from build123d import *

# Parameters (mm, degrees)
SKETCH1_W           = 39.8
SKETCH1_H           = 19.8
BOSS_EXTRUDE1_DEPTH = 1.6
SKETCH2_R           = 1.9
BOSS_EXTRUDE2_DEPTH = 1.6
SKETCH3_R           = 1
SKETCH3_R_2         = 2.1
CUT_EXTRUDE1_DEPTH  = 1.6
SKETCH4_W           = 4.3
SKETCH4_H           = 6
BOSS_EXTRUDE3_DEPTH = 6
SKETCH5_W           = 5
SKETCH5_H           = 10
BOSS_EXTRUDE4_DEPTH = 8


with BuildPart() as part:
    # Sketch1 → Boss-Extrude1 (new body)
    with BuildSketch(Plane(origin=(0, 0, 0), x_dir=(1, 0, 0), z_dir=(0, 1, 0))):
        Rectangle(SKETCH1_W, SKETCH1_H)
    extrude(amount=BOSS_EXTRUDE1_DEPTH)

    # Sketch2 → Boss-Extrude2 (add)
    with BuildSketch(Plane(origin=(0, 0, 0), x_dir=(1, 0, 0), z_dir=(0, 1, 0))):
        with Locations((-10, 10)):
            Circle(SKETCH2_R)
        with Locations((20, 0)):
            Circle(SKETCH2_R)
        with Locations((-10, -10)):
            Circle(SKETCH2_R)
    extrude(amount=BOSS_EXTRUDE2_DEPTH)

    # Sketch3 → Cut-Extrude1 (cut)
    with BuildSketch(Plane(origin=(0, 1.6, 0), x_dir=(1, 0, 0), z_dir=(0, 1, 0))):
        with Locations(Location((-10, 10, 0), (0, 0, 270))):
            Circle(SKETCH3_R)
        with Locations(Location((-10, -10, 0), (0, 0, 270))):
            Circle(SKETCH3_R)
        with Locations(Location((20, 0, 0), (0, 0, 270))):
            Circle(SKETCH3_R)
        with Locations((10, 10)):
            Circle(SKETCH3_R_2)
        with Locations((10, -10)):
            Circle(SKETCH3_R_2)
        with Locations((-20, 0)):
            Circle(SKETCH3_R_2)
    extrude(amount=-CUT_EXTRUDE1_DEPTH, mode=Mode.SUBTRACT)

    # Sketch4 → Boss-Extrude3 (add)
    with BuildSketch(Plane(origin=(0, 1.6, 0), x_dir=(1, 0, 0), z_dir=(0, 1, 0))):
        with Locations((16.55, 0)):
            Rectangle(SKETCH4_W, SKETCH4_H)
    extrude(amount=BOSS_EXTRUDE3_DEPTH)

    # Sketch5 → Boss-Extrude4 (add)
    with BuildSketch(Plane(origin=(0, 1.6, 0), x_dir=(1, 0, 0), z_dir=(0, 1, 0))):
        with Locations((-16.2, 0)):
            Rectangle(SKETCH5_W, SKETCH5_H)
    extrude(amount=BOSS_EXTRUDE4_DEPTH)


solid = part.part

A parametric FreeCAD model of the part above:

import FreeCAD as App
import Part
import Sketcher

V = App.Vector
Q = App.Units.Quantity


def add_polygon(sketch, points):
    """Adds a closed chain of lines whose ends are joined by coincident constraints."""
    first, n = sketch.GeometryCount, len(points)
    for a, b in zip(points, points[1:] + points[:1]):
        sketch.addGeometry(Part.LineSegment(App.Vector(*a, 0), App.Vector(*b, 0)), False)
    for i in range(n):
        sketch.addConstraint(Sketcher.Constraint("Coincident", first + i, 2, first + (i + 1) % n, 1))

doc = App.newDocument("Part")
params = doc.addObject("Spreadsheet::Sheet", "Params")
for row, (alias, value) in enumerate([
    ("sketch1_width", "39.8 mm"),
    ("sketch1_height", "19.8 mm"),
    ("pad1_length", "1.6 mm"),
    ("sketch2_diameter", "3.8 mm"),
    ("pad2_length", "1.6 mm"),
    ("sketch3_diameter", "2 mm"),
    ("sketch3_diameter2", "4.2 mm"),
    ("pocket1_length", "1.6 mm"),
    ("sketch4_height", "6 mm"),
    ("sketch4_width", "4.3 mm"),
    ("pad3_length", "6 mm"),
    ("sketch5_width", "5 mm"),
    ("sketch5_height", "10 mm"),
    ("pad4_length", "8 mm"),
], start=1):
    params.set(f"A{row}", alias)
    params.set(f"B{row}", "=" + value)
    params.setAlias(f"B{row}", alias)

body = doc.addObject("PartDesign::Body", "Body")

# Sketch on XZ plane
sketch1 = body.newObject("Sketcher::SketchObject", "Sketch")
sketch1.AttachmentSupport = (doc.getObject("XZ_Plane"), [""])
sketch1.MapMode = "FlatFace"
add_polygon(sketch1, [(-20, -10), (-20, 10), (20, 10), (20, -10)])  # lines 0-3
sketch1.addConstraint([
    Sketcher.Constraint("Vertical", 0),
    Sketcher.Constraint("Horizontal", 1),
    Sketcher.Constraint("Vertical", 2),
    Sketcher.Constraint("Horizontal", 3),
    Sketcher.Constraint("Symmetric", 0, 2, 2, 2, -1, 1),
    Sketcher.Constraint("DistanceX", 1, 1, 1, 2, Q("39.8 mm")),
    Sketcher.Constraint("DistanceY", 0, 1, 0, 2, Q("19.8 mm")),
])
sketch1.setExpression("Constraints[9]", "Params.sketch1_width")
sketch1.setExpression("Constraints[10]", "Params.sketch1_height")
pad1 = body.newObject("PartDesign::Pad", "Pad")
pad1.Profile = sketch1
pad1.setExpression("Length", "Params.pad1_length")
pad1.Reversed = True

# Sketch on XZ plane
sketch2 = body.newObject("Sketcher::SketchObject", "Sketch001")
sketch2.AttachmentSupport = (doc.getObject("XZ_Plane"), [""])
sketch2.MapMode = "FlatFace"
sketch2.addGeometry([
    Part.Circle(V(-10, -10, 0), V(0, 0, 1), 1.9),
    Part.Circle(V(20, 0, 0), V(0, 0, 1), 1.9),
    Part.Circle(V(-10, 10, 0), V(0, 0, 1), 1.9),
], False)
sketch2.addConstraint([
    Sketcher.Constraint("Equal", 0, 1),
    Sketcher.Constraint("Equal", 1, 2),
    Sketcher.Constraint("Symmetric", 0, 3, 2, 3, -1),
    Sketcher.Constraint("PointOnObject", 1, 3, -1),
    Sketcher.Constraint("Diameter", 0, Q("3.8 mm")),
    Sketcher.Constraint("DistanceX", 0, 3, -1, 1, Q("10 mm")),
    Sketcher.Constraint("DistanceY", 0, 3, -1, 1, Q("10 mm")),
    Sketcher.Constraint("DistanceX", -1, 1, 1, 3, Q("20 mm")),
])
sketch2.setExpression("Constraints[4]", "Params.sketch2_diameter")
pad2 = body.newObject("PartDesign::Pad", "Pad001")
pad2.Profile = sketch2
pad2.setExpression("Length", "Params.pad2_length")
pad2.Reversed = True

# Sketch on XZ plane
sketch3 = body.newObject("Sketcher::SketchObject", "Sketch002")
sketch3.AttachmentSupport = (doc.getObject("XZ_Plane"), [""])
sketch3.MapMode = "FlatFace"
sketch3.AttachmentOffset = App.Placement(V(0, 0, -1.6), App.Rotation())
sketch3.addGeometry([
    Part.Circle(V(-10, -10, 0), V(0, 0, 1), 1),  # 0
    Part.Circle(V(-10, 10, 0), V(0, 0, 1), 1),  # 1
    Part.Circle(V(20, 0, 0), V(0, 0, 1), 1),  # 2
    Part.Circle(V(10, -10, 0), V(0, 0, 1), 2.1),  # 3
    Part.Circle(V(10, 10, 0), V(0, 0, 1), 2.1),  # 4
    Part.Circle(V(-20, 0, 0), V(0, 0, 1), 2.1),  # 5
], False)
sketch3.addConstraint([
    Sketcher.Constraint("Equal", 0, 1),
    Sketcher.Constraint("Equal", 1, 2),
    Sketcher.Constraint("Equal", 3, 4),
    Sketcher.Constraint("Equal", 4, 5),
    Sketcher.Constraint("Symmetric", 1, 3, 3, 3, -1, 1),
    Sketcher.Constraint("Symmetric", 0, 3, 4, 3, -1, 1),
    Sketcher.Constraint("Symmetric", 2, 3, 5, 3, -1, 1),
    Sketcher.Constraint("Symmetric", 0, 3, 3, 3, -2),
    Sketcher.Constraint("PointOnObject", 2, 3, -1),
    Sketcher.Constraint("Diameter", 0, Q("2 mm")),
    Sketcher.Constraint("Diameter", 3, Q("4.2 mm")),
    Sketcher.Constraint("DistanceX", 0, 3, -1, 1, Q("10 mm")),
    Sketcher.Constraint("DistanceY", 0, 3, -1, 1, Q("10 mm")),
    Sketcher.Constraint("DistanceX", -1, 1, 2, 3, Q("20 mm")),
])
sketch3.setExpression("Constraints[9]", "Params.sketch3_diameter")
sketch3.setExpression("Constraints[10]", "Params.sketch3_diameter2")
pocket1 = body.newObject("PartDesign::Pocket", "Pocket")
pocket1.Profile = sketch3
pocket1.setExpression("Length", "Params.pocket1_length")
pocket1.Reversed = True

# Sketch on XZ plane
sketch4 = body.newObject("Sketcher::SketchObject", "Sketch003")
sketch4.AttachmentSupport = (doc.getObject("XZ_Plane"), [""])
sketch4.MapMode = "FlatFace"
sketch4.AttachmentOffset = App.Placement(V(0, 0, -1.6), App.Rotation())
add_polygon(sketch4, [(14.4, -3), (14.4, 3), (18.7, 3), (18.7, -3)])  # lines 0-3
sketch4.addConstraint([
    Sketcher.Constraint("Vertical", 0),
    Sketcher.Constraint("Horizontal", 1),
    Sketcher.Constraint("Vertical", 2),
    Sketcher.Constraint("Horizontal", 3),
    Sketcher.Constraint("DistanceY", 0, 1, 0, 2, Q("6 mm")),
    Sketcher.Constraint("DistanceX", 1, 1, 1, 2, Q("4.3 mm")),
    Sketcher.Constraint("DistanceY", -1, 1, 0, 2, Q("3 mm")),
    Sketcher.Constraint("DistanceX", -1, 1, 0, 2, Q("14.4 mm")),
])
sketch4.setExpression("Constraints[8]", "Params.sketch4_height")
sketch4.setExpression("Constraints[9]", "Params.sketch4_width")
pad3 = body.newObject("PartDesign::Pad", "Pad002")
pad3.Profile = sketch4
pad3.setExpression("Length", "Params.pad3_length")
pad3.Reversed = True

# Sketch on XZ plane
sketch5 = body.newObject("Sketcher::SketchObject", "Sketch004")
sketch5.AttachmentSupport = (doc.getObject("XZ_Plane"), [""])
sketch5.MapMode = "FlatFace"
sketch5.AttachmentOffset = App.Placement(V(0, 0, -1.6), App.Rotation())
add_polygon(sketch5, [(-19, -5), (-19, 5), (-14, 5), (-14, -5)])  # lines 0-3
sketch5.addConstraint([
    Sketcher.Constraint("Vertical", 0),
    Sketcher.Constraint("Horizontal", 1),
    Sketcher.Constraint("Vertical", 2),
    Sketcher.Constraint("Horizontal", 3),
    Sketcher.Constraint("DistanceX", 1, 1, 1, 2, Q("5 mm")),
    Sketcher.Constraint("DistanceY", 0, 1, 0, 2, Q("10 mm")),
    Sketcher.Constraint("DistanceY", -1, 1, 0, 2, Q("5 mm")),
    Sketcher.Constraint("DistanceX", 0, 2, -1, 1, Q("18.7 mm")),
])
sketch5.setExpression("Constraints[8]", "Params.sketch5_width")
sketch5.setExpression("Constraints[9]", "Params.sketch5_height")
pad4 = body.newObject("PartDesign::Pad", "Pad003")
pad4.Profile = sketch5
pad4.setExpression("Length", "Params.pad4_length")
pad4.Reversed = True

doc.recompute()
